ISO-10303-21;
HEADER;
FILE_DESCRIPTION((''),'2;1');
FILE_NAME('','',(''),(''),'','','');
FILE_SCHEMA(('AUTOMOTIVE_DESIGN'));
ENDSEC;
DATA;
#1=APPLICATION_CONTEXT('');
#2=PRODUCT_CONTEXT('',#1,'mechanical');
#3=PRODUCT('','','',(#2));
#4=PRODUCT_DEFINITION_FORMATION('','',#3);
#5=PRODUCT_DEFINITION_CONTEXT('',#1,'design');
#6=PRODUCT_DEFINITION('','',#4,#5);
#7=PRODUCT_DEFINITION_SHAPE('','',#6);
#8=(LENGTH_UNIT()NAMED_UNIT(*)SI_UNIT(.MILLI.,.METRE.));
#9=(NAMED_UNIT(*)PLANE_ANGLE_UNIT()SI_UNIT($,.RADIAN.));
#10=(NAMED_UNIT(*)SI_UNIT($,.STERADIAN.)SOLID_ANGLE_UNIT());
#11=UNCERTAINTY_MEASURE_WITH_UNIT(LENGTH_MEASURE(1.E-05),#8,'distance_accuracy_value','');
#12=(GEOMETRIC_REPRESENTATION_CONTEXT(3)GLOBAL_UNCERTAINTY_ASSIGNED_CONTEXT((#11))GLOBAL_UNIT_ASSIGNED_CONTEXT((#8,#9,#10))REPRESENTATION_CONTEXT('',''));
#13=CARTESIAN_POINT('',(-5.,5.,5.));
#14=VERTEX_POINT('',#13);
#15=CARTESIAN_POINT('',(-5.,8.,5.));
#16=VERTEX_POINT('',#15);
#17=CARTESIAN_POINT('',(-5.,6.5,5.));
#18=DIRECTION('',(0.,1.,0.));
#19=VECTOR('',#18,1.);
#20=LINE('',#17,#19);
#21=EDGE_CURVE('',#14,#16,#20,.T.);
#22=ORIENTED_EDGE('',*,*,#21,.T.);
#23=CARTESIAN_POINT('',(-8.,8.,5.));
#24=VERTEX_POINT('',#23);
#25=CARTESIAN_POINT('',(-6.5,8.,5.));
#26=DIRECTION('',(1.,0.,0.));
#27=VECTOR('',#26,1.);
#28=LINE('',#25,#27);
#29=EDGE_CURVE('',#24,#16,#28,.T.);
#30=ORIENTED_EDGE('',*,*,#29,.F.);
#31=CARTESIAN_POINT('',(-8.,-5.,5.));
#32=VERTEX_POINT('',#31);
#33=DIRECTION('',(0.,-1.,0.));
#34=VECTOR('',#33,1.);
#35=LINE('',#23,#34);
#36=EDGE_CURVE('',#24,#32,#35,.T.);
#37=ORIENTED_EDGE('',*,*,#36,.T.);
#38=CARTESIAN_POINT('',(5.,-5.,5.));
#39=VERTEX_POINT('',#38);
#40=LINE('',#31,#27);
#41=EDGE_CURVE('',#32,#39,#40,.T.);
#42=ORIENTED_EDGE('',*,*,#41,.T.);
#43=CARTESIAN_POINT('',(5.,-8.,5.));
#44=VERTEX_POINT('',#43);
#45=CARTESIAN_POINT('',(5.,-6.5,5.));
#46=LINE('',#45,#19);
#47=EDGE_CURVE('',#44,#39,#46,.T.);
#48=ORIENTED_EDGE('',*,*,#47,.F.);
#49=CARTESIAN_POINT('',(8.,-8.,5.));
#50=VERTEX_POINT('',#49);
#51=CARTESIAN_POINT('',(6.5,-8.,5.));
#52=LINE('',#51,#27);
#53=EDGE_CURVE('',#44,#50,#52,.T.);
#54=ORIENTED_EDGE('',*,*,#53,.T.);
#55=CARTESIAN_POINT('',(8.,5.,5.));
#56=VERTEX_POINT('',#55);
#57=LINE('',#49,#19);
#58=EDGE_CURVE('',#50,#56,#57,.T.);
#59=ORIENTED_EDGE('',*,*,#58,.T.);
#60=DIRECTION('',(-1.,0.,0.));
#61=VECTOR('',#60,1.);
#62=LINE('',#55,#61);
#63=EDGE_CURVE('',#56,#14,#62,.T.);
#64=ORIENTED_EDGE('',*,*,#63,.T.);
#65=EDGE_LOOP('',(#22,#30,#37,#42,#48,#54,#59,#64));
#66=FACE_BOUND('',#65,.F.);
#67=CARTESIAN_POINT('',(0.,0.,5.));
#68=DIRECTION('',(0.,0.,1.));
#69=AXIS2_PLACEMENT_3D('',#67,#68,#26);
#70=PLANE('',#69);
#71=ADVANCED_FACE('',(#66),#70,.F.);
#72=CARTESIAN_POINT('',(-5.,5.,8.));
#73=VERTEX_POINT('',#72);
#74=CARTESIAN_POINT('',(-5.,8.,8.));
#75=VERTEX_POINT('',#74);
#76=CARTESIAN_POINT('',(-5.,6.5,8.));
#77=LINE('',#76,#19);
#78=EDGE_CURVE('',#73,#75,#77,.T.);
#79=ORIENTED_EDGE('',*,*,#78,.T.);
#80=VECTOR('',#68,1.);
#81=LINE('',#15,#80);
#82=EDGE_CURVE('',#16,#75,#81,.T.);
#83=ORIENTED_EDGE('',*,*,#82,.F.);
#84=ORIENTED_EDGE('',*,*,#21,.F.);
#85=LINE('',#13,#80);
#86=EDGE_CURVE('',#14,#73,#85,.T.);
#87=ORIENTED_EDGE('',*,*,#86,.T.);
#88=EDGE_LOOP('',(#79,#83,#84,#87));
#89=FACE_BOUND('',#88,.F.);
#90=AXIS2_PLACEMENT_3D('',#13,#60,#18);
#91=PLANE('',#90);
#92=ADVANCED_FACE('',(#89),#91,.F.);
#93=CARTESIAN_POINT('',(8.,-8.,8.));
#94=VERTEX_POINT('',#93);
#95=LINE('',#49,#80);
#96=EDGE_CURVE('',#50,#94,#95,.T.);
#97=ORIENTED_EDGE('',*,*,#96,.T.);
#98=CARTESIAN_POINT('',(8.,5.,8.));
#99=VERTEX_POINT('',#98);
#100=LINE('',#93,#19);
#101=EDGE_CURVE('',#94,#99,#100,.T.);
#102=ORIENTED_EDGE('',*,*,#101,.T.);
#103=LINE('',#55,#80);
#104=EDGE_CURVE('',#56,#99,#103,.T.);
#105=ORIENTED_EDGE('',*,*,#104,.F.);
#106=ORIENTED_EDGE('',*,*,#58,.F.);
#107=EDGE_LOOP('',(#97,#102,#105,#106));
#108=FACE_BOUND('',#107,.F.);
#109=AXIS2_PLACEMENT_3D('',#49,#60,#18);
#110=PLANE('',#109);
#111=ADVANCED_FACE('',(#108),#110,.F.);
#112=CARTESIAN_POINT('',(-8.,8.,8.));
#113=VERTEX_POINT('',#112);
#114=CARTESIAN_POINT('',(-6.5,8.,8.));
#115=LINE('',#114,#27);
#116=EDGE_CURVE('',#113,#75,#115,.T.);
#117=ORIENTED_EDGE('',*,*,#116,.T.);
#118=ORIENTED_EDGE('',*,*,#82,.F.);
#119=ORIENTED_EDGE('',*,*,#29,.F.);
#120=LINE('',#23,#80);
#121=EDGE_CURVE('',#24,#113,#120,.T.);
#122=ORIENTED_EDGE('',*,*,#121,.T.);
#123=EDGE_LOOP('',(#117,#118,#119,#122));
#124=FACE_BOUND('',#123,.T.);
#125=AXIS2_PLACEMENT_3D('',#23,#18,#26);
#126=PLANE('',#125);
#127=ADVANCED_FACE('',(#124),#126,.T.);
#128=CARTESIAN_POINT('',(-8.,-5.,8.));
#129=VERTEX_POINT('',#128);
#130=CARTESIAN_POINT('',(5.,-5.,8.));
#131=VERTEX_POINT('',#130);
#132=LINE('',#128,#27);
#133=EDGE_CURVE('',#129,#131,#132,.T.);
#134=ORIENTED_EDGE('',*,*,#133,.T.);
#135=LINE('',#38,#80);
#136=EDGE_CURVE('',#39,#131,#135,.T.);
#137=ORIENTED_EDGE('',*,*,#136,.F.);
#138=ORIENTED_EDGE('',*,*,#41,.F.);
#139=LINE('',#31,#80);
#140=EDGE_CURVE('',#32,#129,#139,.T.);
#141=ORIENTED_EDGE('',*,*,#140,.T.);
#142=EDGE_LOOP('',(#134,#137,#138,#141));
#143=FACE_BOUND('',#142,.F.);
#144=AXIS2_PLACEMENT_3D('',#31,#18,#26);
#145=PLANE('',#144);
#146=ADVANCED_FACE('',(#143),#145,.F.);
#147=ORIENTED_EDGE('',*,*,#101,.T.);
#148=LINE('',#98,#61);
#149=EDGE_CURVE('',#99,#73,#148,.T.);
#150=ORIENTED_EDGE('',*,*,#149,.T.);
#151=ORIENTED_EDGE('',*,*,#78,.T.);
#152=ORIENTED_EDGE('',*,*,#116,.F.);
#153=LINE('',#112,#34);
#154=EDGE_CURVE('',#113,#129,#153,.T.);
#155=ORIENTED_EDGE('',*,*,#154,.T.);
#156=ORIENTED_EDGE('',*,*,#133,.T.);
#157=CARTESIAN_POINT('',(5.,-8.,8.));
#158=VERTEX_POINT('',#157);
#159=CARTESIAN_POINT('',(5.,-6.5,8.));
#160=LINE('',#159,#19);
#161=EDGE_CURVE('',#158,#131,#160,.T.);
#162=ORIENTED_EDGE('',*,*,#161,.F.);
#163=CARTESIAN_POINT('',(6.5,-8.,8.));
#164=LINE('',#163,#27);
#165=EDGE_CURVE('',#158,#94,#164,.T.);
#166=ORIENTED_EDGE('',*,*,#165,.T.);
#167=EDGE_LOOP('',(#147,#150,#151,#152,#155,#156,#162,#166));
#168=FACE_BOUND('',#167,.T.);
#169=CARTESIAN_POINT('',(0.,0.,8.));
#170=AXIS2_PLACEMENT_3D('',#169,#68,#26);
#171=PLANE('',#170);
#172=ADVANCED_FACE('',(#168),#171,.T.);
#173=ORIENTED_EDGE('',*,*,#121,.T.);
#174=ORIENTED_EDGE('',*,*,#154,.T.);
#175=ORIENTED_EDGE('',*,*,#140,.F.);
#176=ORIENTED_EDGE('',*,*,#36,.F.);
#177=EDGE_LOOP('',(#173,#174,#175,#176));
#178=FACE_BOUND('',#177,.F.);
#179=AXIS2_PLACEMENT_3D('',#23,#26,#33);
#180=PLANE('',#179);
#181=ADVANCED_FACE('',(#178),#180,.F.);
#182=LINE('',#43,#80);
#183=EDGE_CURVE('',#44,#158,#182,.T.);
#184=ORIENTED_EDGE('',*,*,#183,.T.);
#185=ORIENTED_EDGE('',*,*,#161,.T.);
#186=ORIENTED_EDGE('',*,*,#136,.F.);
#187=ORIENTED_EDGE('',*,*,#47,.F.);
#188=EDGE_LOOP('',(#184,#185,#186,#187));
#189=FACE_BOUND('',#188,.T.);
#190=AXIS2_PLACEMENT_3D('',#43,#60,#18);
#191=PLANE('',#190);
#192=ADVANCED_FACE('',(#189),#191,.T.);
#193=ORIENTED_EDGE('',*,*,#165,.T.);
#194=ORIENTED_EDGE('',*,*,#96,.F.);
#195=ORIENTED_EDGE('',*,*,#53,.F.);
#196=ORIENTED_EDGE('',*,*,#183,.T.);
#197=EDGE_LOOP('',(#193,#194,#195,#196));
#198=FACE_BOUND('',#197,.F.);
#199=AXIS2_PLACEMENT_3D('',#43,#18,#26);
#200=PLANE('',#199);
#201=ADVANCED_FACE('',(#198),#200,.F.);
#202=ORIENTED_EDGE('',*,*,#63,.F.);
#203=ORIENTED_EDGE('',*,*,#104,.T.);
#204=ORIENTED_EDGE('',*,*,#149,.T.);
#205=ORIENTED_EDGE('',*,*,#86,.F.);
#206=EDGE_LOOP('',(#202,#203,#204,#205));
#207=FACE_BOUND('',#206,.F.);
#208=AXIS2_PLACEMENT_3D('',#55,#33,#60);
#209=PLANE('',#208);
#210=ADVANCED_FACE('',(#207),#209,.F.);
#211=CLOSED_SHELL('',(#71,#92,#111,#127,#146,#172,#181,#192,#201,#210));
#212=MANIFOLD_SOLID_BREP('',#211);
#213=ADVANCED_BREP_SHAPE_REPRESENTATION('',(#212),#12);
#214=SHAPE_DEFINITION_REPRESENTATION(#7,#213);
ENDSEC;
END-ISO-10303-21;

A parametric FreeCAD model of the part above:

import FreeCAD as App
import Part
import Sketcher
from FreeCAD import Vector

doc = App.newDocument("Part")
params = doc.addObject("Spreadsheet::Sheet", "Params")
for row, (alias, value) in enumerate([
    ("sketch1_width", "3 mm"),
    ("sketch1_width2", "13 mm"),
    ("pad1_length", "3 mm"),
], start=1):
    params.set(f"A{row}", alias)
    params.set(f"B{row}", "=" + value)
    params.setAlias(f"B{row}", alias)

body = doc.addObject("PartDesign::Body", "Body")

# Sketch on XY plane
sketch1 = body.newObject("Sketcher::SketchObject", "Sketch")
sketch1.AttachmentSupport = (doc.getObject("XY_Plane"), [""])
sketch1.MapMode = "FlatFace"
sketch1.AttachmentOffset = App.Placement(Vector(0, 0, 5), App.Rotation())
sketch1.addGeometry([
    Part.LineSegment(Vector(5, -5, 0), Vector(5, -8, 0)),  # 0
    Part.LineSegment(Vector(5, -8, 0), Vector(8, -8, 0)),  # 1
    Part.LineSegment(Vector(8, -8, 0), Vector(8, 5, 0)),  # 2
    Part.LineSegment(Vector(8, 5, 0), Vector(-5, 5, 0)),  # 3
    Part.LineSegment(Vector(-5, 5, 0), Vector(-5, 8, 0)),  # 4
    Part.LineSegment(Vector(-5, 8, 0), Vector(-8, 8, 0)),  # 5
    Part.LineSegment(Vector(-8, 8, 0), Vector(-8, -5, 0)),  # 6
    Part.LineSegment(Vector(-8, -5, 0), Vector(5, -5, 0)),  # 7
], False)
sketch1.addConstraint([
    Sketcher.Constraint("Coincident", 0, 2, 1, 1),
    Sketcher.Constraint("Coincident", 1, 2, 2, 1),
    Sketcher.Constraint("Coincident", 2, 2, 3, 1),
    Sketcher.Constraint("Coincident", 3, 2, 4, 1),
    Sketcher.Constraint("Coincident", 4, 2, 5, 1),
    Sketcher.Constraint("Coincident", 5, 2, 6, 1),
    Sketcher.Constraint("Coincident", 6, 2, 7, 1),
    Sketcher.Constraint("Coincident", 7, 2, 0, 1),
    Sketcher.Constraint("Vertical", 0),
    Sketcher.Constraint("Horizontal", 1),
    Sketcher.Constraint("Vertical", 2),
    Sketcher.Constraint("Horizontal", 3),
    Sketcher.Constraint("Vertical", 4),
    Sketcher.Constraint("Horizontal", 5),
    Sketcher.Constraint("Vertical", 6),
    Sketcher.Constraint("Horizontal", 7),
    Sketcher.Constraint("Symmetric", 0, 2, 4, 2, -1, 1),
    Sketcher.Constraint("Symmetric", 2, 2, 6, 2, -1, 1),
    Sketcher.Constraint("Equal", 5, 0),
    Sketcher.Constraint("Equal", 7, 2),
    Sketcher.Constraint("DistanceX", 1, 1, 1, 2, 3.0),
    Sketcher.Constraint("DistanceX", 3, 2, 3, 1, 13.0),
])
sketch1.setExpression("Constraints[20]", "Params.sketch1_width")
sketch1.setExpression("Constraints[21]", "Params.sketch1_width2")
pad1 = body.newObject("PartDesign::Pad", "Pad")
pad1.Profile = sketch1
pad1.setExpression("Length", "Params.pad1_length")

doc.recompute()
